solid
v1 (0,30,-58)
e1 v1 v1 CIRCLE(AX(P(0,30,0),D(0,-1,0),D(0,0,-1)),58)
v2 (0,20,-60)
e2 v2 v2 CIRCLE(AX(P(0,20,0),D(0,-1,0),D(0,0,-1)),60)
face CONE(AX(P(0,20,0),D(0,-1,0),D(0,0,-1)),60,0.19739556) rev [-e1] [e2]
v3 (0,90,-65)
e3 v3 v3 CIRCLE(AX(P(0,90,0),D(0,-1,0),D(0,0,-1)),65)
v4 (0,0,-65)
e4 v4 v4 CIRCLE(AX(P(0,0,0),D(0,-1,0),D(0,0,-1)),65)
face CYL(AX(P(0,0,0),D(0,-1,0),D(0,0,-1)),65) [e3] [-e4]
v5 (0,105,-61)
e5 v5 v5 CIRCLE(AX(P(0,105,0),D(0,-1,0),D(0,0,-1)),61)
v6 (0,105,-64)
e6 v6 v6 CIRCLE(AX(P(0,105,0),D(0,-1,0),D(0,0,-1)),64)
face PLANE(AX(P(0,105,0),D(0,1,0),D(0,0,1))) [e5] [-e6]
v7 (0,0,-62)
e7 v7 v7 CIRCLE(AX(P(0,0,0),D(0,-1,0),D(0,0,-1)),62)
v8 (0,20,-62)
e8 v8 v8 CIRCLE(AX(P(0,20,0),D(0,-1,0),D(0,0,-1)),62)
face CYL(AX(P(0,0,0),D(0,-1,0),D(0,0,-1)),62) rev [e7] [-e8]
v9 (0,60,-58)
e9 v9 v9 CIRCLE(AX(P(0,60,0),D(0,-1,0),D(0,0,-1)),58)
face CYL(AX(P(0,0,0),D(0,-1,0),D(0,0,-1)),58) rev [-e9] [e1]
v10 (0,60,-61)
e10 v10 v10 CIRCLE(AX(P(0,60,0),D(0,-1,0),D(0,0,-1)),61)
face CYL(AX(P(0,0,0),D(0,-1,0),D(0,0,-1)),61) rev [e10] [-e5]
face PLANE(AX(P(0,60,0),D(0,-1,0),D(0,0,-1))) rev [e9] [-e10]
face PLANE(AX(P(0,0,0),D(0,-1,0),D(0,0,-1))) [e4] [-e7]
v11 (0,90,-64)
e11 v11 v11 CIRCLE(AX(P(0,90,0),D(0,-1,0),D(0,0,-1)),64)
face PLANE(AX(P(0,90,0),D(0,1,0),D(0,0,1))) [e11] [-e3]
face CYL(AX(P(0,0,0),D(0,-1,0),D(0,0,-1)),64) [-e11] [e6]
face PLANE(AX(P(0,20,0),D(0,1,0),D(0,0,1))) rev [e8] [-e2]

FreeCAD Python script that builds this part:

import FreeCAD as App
import Part
import Sketcher


def add_polygon(sketch, points):
    """Adds a closed chain of lines whose ends are joined by coincident constraints."""
    first, n = sketch.GeometryCount, len(points)
    for a, b in zip(points, points[1:] + points[:1]):
        sketch.addGeometry(Part.LineSegment(App.Vector(*a, 0), App.Vector(*b, 0)), False)
    for i in range(n):
        sketch.addConstraint(Sketcher.Constraint("Coincident", first + i, 2, first + (i + 1) % n, 1))

doc = App.newDocument("Part")
body = doc.addObject("PartDesign::Body", "Body")

# Sketch on XY plane
sketch1 = body.newObject("Sketcher::SketchObject", "Sketch")
sketch1.AttachmentSupport = (doc.getObject("XY_Plane"), [""])
sketch1.MapMode = "FlatFace"
add_polygon(sketch1, [(-65, 0), (-62, 0), (-62, 20), (-60, 20), (-58, 30), (-58, 60), (-61, 60), (-61, 105), (-64, 105), (-64, 90), (-65, 90)])  # lines 0-10
sketch1.addConstraint([
    Sketcher.Constraint("Horizontal", 0),
    Sketcher.Constraint("Vertical", 1),
    Sketcher.Constraint("Horizontal", 2),
    Sketcher.Constraint("Vertical", 4),
    Sketcher.Constraint("Horizontal", 5),
    Sketcher.Constraint("Vertical", 6),
    Sketcher.Constraint("Horizontal", 7),
    Sketcher.Constraint("Vertical", 8),
    Sketcher.Constraint("Horizontal", 9),
    Sketcher.Constraint("Vertical", 10),
    Sketcher.Constraint("PointOnObject", 0, 2, -1),
    Sketcher.Constraint("Equal", 0, 5),
    Sketcher.Constraint("Equal", 5, 7),
    Sketcher.Constraint("DistanceX", 0, 1, 0, 2, 3.0),
    Sketcher.Constraint("DistanceX", 2, 1, 2, 2, 2.0),
    Sketcher.Constraint("DistanceX", 9, 2, 9, 1, 1.0),
    Sketcher.Constraint("DistanceY", 1, 1, 1, 2, 20.0),
    Sketcher.Constraint("DistanceY", 4, 1, 4, 2, 30.0),
    Sketcher.Constraint("DistanceY", 6, 1, 6, 2, 45.0),
    Sketcher.Constraint("DistanceY", 8, 2, 8, 1, 15.0),
    Sketcher.Constraint("DistanceY", 10, 2, 10, 1, 90.0),
    Sketcher.Constraint("DistanceX", 0, 2, -1, 1, 62.0),
])
revolution = body.newObject("PartDesign::Revolution", "Revolution")
revolution.Profile = sketch1
revolution.ReferenceAxis = (sketch1, ["V_Axis"])
revolution.Angle = 360

doc.recompute()
